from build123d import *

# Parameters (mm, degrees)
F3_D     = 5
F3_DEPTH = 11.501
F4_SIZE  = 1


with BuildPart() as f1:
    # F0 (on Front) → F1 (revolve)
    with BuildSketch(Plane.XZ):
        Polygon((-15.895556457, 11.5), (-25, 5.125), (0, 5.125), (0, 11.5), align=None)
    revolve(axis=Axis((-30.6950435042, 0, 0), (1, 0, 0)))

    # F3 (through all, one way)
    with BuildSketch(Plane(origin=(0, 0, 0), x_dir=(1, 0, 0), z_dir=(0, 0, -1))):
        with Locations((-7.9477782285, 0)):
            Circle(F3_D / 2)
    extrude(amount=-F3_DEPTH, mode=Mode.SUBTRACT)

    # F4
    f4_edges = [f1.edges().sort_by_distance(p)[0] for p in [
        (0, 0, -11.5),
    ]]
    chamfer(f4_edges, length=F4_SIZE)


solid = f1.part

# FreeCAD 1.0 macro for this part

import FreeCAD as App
import Part
import Sketcher
from FreeCAD import Vector
Q = App.Units.Quantity


def edges_at(feature, points):
    """Names of the edges that pass closest to the given points."""
    edges = feature.Shape.Edges
    near = lambda p: min(range(len(edges)), key=lambda i: edges[i].distToShape(Part.Vertex(*p))[0])
    return sorted({f"Edge{near(p) + 1}" for p in points})


def add_polygon(sketch, points):
    """Adds a closed chain of lines whose ends are joined by coincident constraints."""
    first, n = sketch.GeometryCount, len(points)
    for a, b in zip(points, points[1:] + points[:1]):
        sketch.addGeometry(Part.LineSegment(App.Vector(*a, 0), App.Vector(*b, 0)), False)
    for i in range(n):
        sketch.addConstraint(Sketcher.Constraint("Coincident", first + i, 2, first + (i + 1) % n, 1))

doc = App.newDocument("Part")
body = doc.addObject("PartDesign::Body", "Body")

# Sketch on XZ plane
sketch1 = doc.addObject("Sketcher::SketchObject", "Sketch")
body.addObject(sketch1)
sketch1.AttachmentSupport = (doc.XZ_Plane, [""])
sketch1.MapMode = "FlatFace"
add_polygon(sketch1, [(-16, 12), (-25, 5), (0, 5), (0, 12)])  # lines 0-3
sketch1.addConstraint([
    Sketcher.Constraint("Horizontal", 1),
    Sketcher.Constraint("Vertical", 2),
    Sketcher.Constraint("Horizontal", 3),
    Sketcher.Constraint("PointOnObject", 1, 2, -2),
    Sketcher.Constraint("DistanceX", 1, 1, 1, 2, Q("25 mm")),
    Sketcher.Constraint("Angle", 0, Q("-145 deg")),
    Sketcher.Constraint("DistanceY", -1, 1, 2, 2, Q("11.5 mm")),
    Sketcher.Constraint("DistanceY", 2, 1, 2, 2, Q("6.375 mm")),
])
revolution = doc.addObject("PartDesign::Revolution", "Revolution")
body.addObject(revolution)
revolution.Profile = sketch1
revolution.ReferenceAxis = (sketch1, ["H_Axis"])
revolution.Angle = 360

# Sketch on XY plane
sketch2 = doc.addObject("Sketcher::SketchObject", "Sketch001")
body.addObject(sketch2)
sketch2.AttachmentSupport = (doc.XY_Plane, [""])
sketch2.MapMode = "FlatFace"
sketch2.addGeometry(Part.Circle(Vector(-7.9, 0, 0), Vector(0, 0, 1), 2.5), False)
sketch2.addConstraint([
    Sketcher.Constraint("PointOnObject", 0, 3, -1),
    Sketcher.Constraint("Diameter", 0, Q("5 mm")),
    Sketcher.Constraint("DistanceX", 0, 3, -1, 1, Q("7.947778 mm")),
])
pocket1 = doc.addObject("PartDesign::Pocket", "Pocket")
body.addObject(pocket1)
pocket1.Profile = sketch2
pocket1.Type = "ThroughAll"
pocket1.Reversed = True
doc.recompute()

chamfer = doc.addObject("PartDesign::Chamfer", "Chamfer")
body.addObject(chamfer)
chamfer.Base = (pocket1, edges_at(pocket1, [(0, 0, -11.5)]))
chamfer.Size = 1

doc.recompute()
